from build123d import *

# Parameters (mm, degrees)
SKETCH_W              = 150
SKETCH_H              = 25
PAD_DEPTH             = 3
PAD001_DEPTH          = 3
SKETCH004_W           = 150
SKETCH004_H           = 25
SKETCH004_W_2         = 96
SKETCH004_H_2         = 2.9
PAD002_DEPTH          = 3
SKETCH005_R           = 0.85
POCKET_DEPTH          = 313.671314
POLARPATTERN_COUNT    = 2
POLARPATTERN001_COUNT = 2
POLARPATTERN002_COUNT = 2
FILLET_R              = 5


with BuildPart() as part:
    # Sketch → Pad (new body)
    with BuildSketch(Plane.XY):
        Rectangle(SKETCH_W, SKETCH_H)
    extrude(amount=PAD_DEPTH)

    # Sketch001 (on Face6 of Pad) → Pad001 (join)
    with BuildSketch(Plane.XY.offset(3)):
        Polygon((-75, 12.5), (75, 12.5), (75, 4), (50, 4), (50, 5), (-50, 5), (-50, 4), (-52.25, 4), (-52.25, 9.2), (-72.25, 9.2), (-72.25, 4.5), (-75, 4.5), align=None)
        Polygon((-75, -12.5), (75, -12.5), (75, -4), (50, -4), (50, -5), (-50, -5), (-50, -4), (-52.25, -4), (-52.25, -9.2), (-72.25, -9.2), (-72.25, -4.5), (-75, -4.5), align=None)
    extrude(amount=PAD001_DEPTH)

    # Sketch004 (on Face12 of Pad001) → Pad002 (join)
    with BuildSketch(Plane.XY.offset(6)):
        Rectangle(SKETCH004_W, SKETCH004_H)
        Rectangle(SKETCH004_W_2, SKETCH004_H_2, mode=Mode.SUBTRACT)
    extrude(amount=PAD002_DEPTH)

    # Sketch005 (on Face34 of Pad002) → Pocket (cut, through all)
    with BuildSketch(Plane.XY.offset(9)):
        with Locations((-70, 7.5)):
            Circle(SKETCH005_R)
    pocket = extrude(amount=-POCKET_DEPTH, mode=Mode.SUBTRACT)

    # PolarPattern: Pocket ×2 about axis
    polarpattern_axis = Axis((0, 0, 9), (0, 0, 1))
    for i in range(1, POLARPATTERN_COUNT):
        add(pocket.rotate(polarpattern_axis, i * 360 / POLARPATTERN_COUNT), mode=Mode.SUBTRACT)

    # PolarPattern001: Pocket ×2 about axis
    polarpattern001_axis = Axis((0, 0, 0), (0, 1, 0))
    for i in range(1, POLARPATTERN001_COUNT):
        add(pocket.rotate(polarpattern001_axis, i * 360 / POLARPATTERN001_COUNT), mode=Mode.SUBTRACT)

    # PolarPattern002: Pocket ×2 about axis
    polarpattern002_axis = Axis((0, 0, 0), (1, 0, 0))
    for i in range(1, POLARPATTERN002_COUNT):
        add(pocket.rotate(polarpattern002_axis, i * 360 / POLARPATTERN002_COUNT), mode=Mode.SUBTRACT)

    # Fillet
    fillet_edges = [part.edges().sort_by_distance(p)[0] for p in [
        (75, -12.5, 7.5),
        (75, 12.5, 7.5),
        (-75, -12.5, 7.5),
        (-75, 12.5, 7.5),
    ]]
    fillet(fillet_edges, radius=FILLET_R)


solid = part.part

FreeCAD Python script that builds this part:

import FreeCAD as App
import Part
import Sketcher

V = App.Vector


def edges_at(feature, points):
    """Names of the edges that pass closest to the given points."""
    edges = feature.Shape.Edges
    near = lambda p: min(range(len(edges)), key=lambda i: edges[i].distToShape(Part.Vertex(*p))[0])
    return sorted({f"Edge{near(p) + 1}" for p in points})


def add_polygon(sketch, points):
    """Adds a closed chain of lines whose ends are joined by coincident constraints."""
    first, n = sketch.GeometryCount, len(points)
    for a, b in zip(points, points[1:] + points[:1]):
        sketch.addGeometry(Part.LineSegment(App.Vector(*a, 0), App.Vector(*b, 0)), False)
    for i in range(n):
        sketch.addConstraint(Sketcher.Constraint("Coincident", first + i, 2, first + (i + 1) % n, 1))

doc = App.newDocument("Part")
params = doc.addObject("Spreadsheet::Sheet", "Params")
for row, (alias, value) in enumerate([
    ("sketch1_width", "150 mm"),
    ("sketch1_height", "25 mm"),
    ("pad1_length", "3 mm"),
    ("sketch2_width", "150 mm"),
    ("sketch2_width2", "20 mm"),
    ("sketch2_width3", "100 mm"),
    ("sketch2_height", "8 mm"),
    ("sketch2_height2", "1 mm"),
    ("pad2_length", "3 mm"),
    ("sketch3_width", "150 mm"),
    ("sketch3_width2", "96 mm"),
    ("sketch3_height", "25 mm"),
    ("sketch3_height2", "2.9 mm"),
    ("pad3_length", "3 mm"),
    ("sketch4_diameter", "1.7 mm"),
    ("fillet_radius", "5 mm"),
], start=1):
    params.set(f"A{row}", alias)
    params.set(f"B{row}", "=" + value)
    params.setAlias(f"B{row}", alias)

body = doc.addObject("PartDesign::Body", "Body")

sketch1 = doc.addObject("Sketcher::SketchObject", "Sketch")
body.addObject(sketch1)
sketch1.AttachmentSupport = (doc.XY_Plane, [""])
sketch1.MapMode = "FlatFace"
add_polygon(sketch1, [(-75, 12.5), (-75, -12.5), (75, -12.5), (75, 12.5)])
sketch1.addConstraint(Sketcher.Constraint("Vertical", 0))
sketch1.addConstraint(Sketcher.Constraint("Horizontal", 1))
sketch1.addConstraint(Sketcher.Constraint("Vertical", 2))
sketch1.addConstraint(Sketcher.Constraint("Horizontal", 3))
sketch1.addConstraint(Sketcher.Constraint("Symmetric", 0, 2, 2, 2, -1, 1))
sketch1.addConstraint(Sketcher.Constraint("DistanceX", 1, 1, 1, 2, 150.0))
sketch1.addConstraint(Sketcher.Constraint("DistanceY", 0, 2, 0, 1, 25.0))
sketch1.setExpression("Constraints[9]", "Params.sketch1_width")
sketch1.setExpression("Constraints[10]", "Params.sketch1_height")
pad1 = doc.addObject("PartDesign::Pad", "Pad")
body.addObject(pad1)
pad1.Profile = sketch1
pad1.setExpression("Length", "Params.pad1_length")

sketch2 = doc.addObject("Sketcher::SketchObject", "Sketch001")
body.addObject(sketch2)
sketch2.AttachmentSupport = (doc.XY_Plane, [""])
sketch2.MapMode = "FlatFace"
sketch2.AttachmentOffset = App.Placement(V(0, 0, 3), App.Rotation())
add_polygon(sketch2, [(75, 12.5), (-75, 12.5), (-75, 4.5), (-72.25, 4.5), (-72.25, 9.2), (-52.25, 9.2), (-52.25, 4), (-50, 4), (-50, 5), (50, 5), (50, 4), (75, 4)])
add_polygon(sketch2, [(-75, -12.5), (75, -12.5), (75, -4), (50, -4), (50, -5), (-50, -5), (-50, -4), (-52.25, -4), (-52.25, -9.2), (-72.25, -9.2), (-72.25, -4.5), (-75, -4.5)])
sketch2.addConstraint(Sketcher.Constraint("Horizontal", 0))
sketch2.addConstraint(Sketcher.Constraint("Vertical", 1))
sketch2.addConstraint(Sketcher.Constraint("Horizontal", 2))
sketch2.addConstraint(Sketcher.Constraint("Vertical", 3))
sketch2.addConstraint(Sketcher.Constraint("Horizontal", 4))
sketch2.addConstraint(Sketcher.Constraint("Vertical", 5))
sketch2.addConstraint(Sketcher.Constraint("Horizontal", 6))
sketch2.addConstraint(Sketcher.Constraint("Vertical", 7))
sketch2.addConstraint(Sketcher.Constraint("Horizontal", 8))
sketch2.addConstraint(Sketcher.Constraint("Vertical", 9))
sketch2.addConstraint(Sketcher.Constraint("Horizontal", 10))
sketch2.addConstraint(Sketcher.Constraint("Vertical", 11))
sketch2.addConstraint(Sketcher.Constraint("Horizontal", 12))
sketch2.addConstraint(Sketcher.Constraint("Vertical", 13))
sketch2.addConstraint(Sketcher.Constraint("Horizontal", 14))
sketch2.addConstraint(Sketcher.Constraint("Vertical", 15))
sketch2.addConstraint(Sketcher.Constraint("Horizontal", 16))
sketch2.addConstraint(Sketcher.Constraint("Vertical", 17))
sketch2.addConstraint(Sketcher.Constraint("Horizontal", 18))
sketch2.addConstraint(Sketcher.Constraint("Vertical", 19))
sketch2.addConstraint(Sketcher.Constraint("Horizontal", 20))
sketch2.addConstraint(Sketcher.Constraint("Vertical", 21))
sketch2.addConstraint(Sketcher.Constraint("Horizontal", 22))
sketch2.addConstraint(Sketcher.Constraint("Vertical", 23))
sketch2.addConstraint(Sketcher.Constraint("Symmetric", 0, 2, 12, 2, -1, 1))
sketch2.addConstraint(Sketcher.Constraint("Symmetric", 6, 2, 14, 2, -1, 1))
sketch2.addConstraint(Sketcher.Constraint("Symmetric", 8, 2, 16, 2, -1, 1))
sketch2.addConstraint(Sketcher.Constraint("Symmetric", 6, 2, 9, 2, -2))
sketch2.addConstraint(Sketcher.Constraint("Symmetric", 5, 2, 18, 2, -1))
sketch2.addConstraint(Sketcher.Constraint("Symmetric", 3, 2, 20, 2, -1))
sketch2.addConstraint(Sketcher.Constraint("Symmetric", 1, 2, 22, 2, -1))
sketch2.addConstraint(Sketcher.Constraint("Vertical", 11, 2, 12, 2))
sketch2.addConstraint(Sketcher.Constraint("DistanceX", 0, 2, 0, 1, 150.0))
sketch2.addConstraint(Sketcher.Constraint("DistanceX", 4, 1, 4, 2, 20.0))
sketch2.addConstraint(Sketcher.Constraint("DistanceX", 8, 1, 8, 2, 100.0))
sketch2.addConstraint(Sketcher.Constraint("DistanceY", 1, 2, 1, 1, 8.0))
sketch2.addConstraint(Sketcher.Constraint("DistanceY", 7, 1, 7, 2, 1.0))
sketch2.addConstraint(Sketcher.Constraint("DistanceY", 3, 1, 3, 2, 4.7))
sketch2.addConstraint(Sketcher.Constraint("DistanceY", 5, 2, 5, 1, 5.2))
sketch2.addConstraint(Sketcher.Constraint("DistanceY", -1, 1, 5, 2, 4.0))
sketch2.addConstraint(Sketcher.Constraint("DistanceX", 2, 1, 2, 2, 2.75))
sketch2.setExpression("Constraints[56]", "Params.sketch2_width")
sketch2.setExpression("Constraints[57]", "Params.sketch2_width2")
sketch2.setExpression("Constraints[58]", "Params.sketch2_width3")
sketch2.setExpression("Constraints[59]", "Params.sketch2_height")
sketch2.setExpression("Constraints[60]", "Params.sketch2_height2")
pad2 = doc.addObject("PartDesign::Pad", "Pad001")
body.addObject(pad2)
pad2.Profile = sketch2
pad2.setExpression("Length", "Params.pad2_length")

sketch3 = doc.addObject("Sketcher::SketchObject", "Sketch002")
body.addObject(sketch3)
sketch3.AttachmentSupport = (doc.XY_Plane, [""])
sketch3.MapMode = "FlatFace"
sketch3.AttachmentOffset = App.Placement(V(0, 0, 6), App.Rotation())
add_polygon(sketch3, [(-75, 12.5), (-75, -12.5), (75, -12.5), (75, 12.5)])
add_polygon(sketch3, [(48, -1.45), (-48, -1.45), (-48, 1.45), (48, 1.45)])
sketch3.addConstraint(Sketcher.Constraint("Vertical", 0))
sketch3.addConstraint(Sketcher.Constraint("Horizontal", 1))
sketch3.addConstraint(Sketcher.Constraint("Vertical", 2))
sketch3.addConstraint(Sketcher.Constraint("Horizontal", 3))
sketch3.addConstraint(Sketcher.Constraint("Horizontal", 4))
sketch3.addConstraint(Sketcher.Constraint("Vertical", 5))
sketch3.addConstraint(Sketcher.Constraint("Horizontal", 6))
sketch3.addConstraint(Sketcher.Constraint("Vertical", 7))
sketch3.addConstraint(Sketcher.Constraint("Symmetric", 0, 2, 2, 2, -1, 1))
sketch3.addConstraint(Sketcher.Constraint("Symmetric", 4, 2, 6, 2, -1, 1))
sketch3.addConstraint(Sketcher.Constraint("DistanceX", 1, 1, 1, 2, 150.0))
sketch3.addConstraint(Sketcher.Constraint("DistanceX", 4, 2, 4, 1, 96.0))
sketch3.addConstraint(Sketcher.Constraint("DistanceY", 0, 2, 0, 1, 25.0))
sketch3.addConstraint(Sketcher.Constraint("DistanceY", 5, 1, 5, 2, 2.9))
sketch3.setExpression("Constraints[18]", "Params.sketch3_width")
sketch3.setExpression("Constraints[19]", "Params.sketch3_width2")
sketch3.setExpression("Constraints[20]", "Params.sketch3_height")
sketch3.setExpression("Constraints[21]", "Params.sketch3_height2")
pad3 = doc.addObject("PartDesign::Pad", "Pad002")
body.addObject(pad3)
pad3.Profile = sketch3
pad3.setExpression("Length", "Params.pad3_length")

sketch4 = doc.addObject("Sketcher::SketchObject", "Sketch003")
body.addObject(sketch4)
sketch4.AttachmentSupport = (doc.XY_Plane, [""])
sketch4.MapMode = "FlatFace"
sketch4.AttachmentOffset = App.Placement(V(0, 0, 9), App.Rotation())
sketch4.addGeometry(Part.Circle(V(-70, 7.5, 0), V(0, 0, 1), 0.85), False)
sketch4.addConstraint(Sketcher.Constraint("Diameter", 0, 1.7))
sketch4.addConstraint(Sketcher.Constraint("DistanceX", 0, 3, -1, 1, 70.0))
sketch4.addConstraint(Sketcher.Constraint("DistanceY", -1, 1, 0, 3, 7.5))
sketch4.setExpression("Constraints[0]", "Params.sketch4_diameter")
pocket1 = doc.addObject("PartDesign::Pocket", "Pocket")
body.addObject(pocket1)
pocket1.Profile = sketch4
pocket1.Type = "ThroughAll"
doc.recompute()

polarpattern = doc.addObject("PartDesign::PolarPattern", "PolarPattern")
body.addObject(polarpattern)
polarpattern.Originals = [pocket1]
polarpattern.Axis = (doc.Z_Axis, [""])
polarpattern.Angle = 360
polarpattern.Occurrences = 2
body.Tip = polarpattern
doc.recompute()

polarpattern2 = doc.addObject("PartDesign::PolarPattern", "PolarPattern001")
body.addObject(polarpattern2)
polarpattern2.Originals = [pocket1]
polarpattern2.Axis = (doc.Y_Axis, [""])
polarpattern2.Angle = 360
polarpattern2.Occurrences = 2
body.Tip = polarpattern2
doc.recompute()

polarpattern3 = doc.addObject("PartDesign::PolarPattern", "PolarPattern002")
body.addObject(polarpattern3)
polarpattern3.Originals = [pocket1]
polarpattern3.Axis = (doc.X_Axis, [""])
polarpattern3.Angle = 360
polarpattern3.Occurrences = 2
body.Tip = polarpattern3
doc.recompute()

fillet = doc.addObject("PartDesign::Fillet", "Fillet")
body.addObject(fillet)
fillet.Base = (polarpattern3, edges_at(polarpattern3, [
    (75, -12.5, 4.5),
    (75, 12.5, 4.5),
    (-75, -12.5, 4.5),
    (-75, 12.5, 4.5),
]))
fillet.setExpression("Radius", "Params.fillet_radius")

doc.recompute()
